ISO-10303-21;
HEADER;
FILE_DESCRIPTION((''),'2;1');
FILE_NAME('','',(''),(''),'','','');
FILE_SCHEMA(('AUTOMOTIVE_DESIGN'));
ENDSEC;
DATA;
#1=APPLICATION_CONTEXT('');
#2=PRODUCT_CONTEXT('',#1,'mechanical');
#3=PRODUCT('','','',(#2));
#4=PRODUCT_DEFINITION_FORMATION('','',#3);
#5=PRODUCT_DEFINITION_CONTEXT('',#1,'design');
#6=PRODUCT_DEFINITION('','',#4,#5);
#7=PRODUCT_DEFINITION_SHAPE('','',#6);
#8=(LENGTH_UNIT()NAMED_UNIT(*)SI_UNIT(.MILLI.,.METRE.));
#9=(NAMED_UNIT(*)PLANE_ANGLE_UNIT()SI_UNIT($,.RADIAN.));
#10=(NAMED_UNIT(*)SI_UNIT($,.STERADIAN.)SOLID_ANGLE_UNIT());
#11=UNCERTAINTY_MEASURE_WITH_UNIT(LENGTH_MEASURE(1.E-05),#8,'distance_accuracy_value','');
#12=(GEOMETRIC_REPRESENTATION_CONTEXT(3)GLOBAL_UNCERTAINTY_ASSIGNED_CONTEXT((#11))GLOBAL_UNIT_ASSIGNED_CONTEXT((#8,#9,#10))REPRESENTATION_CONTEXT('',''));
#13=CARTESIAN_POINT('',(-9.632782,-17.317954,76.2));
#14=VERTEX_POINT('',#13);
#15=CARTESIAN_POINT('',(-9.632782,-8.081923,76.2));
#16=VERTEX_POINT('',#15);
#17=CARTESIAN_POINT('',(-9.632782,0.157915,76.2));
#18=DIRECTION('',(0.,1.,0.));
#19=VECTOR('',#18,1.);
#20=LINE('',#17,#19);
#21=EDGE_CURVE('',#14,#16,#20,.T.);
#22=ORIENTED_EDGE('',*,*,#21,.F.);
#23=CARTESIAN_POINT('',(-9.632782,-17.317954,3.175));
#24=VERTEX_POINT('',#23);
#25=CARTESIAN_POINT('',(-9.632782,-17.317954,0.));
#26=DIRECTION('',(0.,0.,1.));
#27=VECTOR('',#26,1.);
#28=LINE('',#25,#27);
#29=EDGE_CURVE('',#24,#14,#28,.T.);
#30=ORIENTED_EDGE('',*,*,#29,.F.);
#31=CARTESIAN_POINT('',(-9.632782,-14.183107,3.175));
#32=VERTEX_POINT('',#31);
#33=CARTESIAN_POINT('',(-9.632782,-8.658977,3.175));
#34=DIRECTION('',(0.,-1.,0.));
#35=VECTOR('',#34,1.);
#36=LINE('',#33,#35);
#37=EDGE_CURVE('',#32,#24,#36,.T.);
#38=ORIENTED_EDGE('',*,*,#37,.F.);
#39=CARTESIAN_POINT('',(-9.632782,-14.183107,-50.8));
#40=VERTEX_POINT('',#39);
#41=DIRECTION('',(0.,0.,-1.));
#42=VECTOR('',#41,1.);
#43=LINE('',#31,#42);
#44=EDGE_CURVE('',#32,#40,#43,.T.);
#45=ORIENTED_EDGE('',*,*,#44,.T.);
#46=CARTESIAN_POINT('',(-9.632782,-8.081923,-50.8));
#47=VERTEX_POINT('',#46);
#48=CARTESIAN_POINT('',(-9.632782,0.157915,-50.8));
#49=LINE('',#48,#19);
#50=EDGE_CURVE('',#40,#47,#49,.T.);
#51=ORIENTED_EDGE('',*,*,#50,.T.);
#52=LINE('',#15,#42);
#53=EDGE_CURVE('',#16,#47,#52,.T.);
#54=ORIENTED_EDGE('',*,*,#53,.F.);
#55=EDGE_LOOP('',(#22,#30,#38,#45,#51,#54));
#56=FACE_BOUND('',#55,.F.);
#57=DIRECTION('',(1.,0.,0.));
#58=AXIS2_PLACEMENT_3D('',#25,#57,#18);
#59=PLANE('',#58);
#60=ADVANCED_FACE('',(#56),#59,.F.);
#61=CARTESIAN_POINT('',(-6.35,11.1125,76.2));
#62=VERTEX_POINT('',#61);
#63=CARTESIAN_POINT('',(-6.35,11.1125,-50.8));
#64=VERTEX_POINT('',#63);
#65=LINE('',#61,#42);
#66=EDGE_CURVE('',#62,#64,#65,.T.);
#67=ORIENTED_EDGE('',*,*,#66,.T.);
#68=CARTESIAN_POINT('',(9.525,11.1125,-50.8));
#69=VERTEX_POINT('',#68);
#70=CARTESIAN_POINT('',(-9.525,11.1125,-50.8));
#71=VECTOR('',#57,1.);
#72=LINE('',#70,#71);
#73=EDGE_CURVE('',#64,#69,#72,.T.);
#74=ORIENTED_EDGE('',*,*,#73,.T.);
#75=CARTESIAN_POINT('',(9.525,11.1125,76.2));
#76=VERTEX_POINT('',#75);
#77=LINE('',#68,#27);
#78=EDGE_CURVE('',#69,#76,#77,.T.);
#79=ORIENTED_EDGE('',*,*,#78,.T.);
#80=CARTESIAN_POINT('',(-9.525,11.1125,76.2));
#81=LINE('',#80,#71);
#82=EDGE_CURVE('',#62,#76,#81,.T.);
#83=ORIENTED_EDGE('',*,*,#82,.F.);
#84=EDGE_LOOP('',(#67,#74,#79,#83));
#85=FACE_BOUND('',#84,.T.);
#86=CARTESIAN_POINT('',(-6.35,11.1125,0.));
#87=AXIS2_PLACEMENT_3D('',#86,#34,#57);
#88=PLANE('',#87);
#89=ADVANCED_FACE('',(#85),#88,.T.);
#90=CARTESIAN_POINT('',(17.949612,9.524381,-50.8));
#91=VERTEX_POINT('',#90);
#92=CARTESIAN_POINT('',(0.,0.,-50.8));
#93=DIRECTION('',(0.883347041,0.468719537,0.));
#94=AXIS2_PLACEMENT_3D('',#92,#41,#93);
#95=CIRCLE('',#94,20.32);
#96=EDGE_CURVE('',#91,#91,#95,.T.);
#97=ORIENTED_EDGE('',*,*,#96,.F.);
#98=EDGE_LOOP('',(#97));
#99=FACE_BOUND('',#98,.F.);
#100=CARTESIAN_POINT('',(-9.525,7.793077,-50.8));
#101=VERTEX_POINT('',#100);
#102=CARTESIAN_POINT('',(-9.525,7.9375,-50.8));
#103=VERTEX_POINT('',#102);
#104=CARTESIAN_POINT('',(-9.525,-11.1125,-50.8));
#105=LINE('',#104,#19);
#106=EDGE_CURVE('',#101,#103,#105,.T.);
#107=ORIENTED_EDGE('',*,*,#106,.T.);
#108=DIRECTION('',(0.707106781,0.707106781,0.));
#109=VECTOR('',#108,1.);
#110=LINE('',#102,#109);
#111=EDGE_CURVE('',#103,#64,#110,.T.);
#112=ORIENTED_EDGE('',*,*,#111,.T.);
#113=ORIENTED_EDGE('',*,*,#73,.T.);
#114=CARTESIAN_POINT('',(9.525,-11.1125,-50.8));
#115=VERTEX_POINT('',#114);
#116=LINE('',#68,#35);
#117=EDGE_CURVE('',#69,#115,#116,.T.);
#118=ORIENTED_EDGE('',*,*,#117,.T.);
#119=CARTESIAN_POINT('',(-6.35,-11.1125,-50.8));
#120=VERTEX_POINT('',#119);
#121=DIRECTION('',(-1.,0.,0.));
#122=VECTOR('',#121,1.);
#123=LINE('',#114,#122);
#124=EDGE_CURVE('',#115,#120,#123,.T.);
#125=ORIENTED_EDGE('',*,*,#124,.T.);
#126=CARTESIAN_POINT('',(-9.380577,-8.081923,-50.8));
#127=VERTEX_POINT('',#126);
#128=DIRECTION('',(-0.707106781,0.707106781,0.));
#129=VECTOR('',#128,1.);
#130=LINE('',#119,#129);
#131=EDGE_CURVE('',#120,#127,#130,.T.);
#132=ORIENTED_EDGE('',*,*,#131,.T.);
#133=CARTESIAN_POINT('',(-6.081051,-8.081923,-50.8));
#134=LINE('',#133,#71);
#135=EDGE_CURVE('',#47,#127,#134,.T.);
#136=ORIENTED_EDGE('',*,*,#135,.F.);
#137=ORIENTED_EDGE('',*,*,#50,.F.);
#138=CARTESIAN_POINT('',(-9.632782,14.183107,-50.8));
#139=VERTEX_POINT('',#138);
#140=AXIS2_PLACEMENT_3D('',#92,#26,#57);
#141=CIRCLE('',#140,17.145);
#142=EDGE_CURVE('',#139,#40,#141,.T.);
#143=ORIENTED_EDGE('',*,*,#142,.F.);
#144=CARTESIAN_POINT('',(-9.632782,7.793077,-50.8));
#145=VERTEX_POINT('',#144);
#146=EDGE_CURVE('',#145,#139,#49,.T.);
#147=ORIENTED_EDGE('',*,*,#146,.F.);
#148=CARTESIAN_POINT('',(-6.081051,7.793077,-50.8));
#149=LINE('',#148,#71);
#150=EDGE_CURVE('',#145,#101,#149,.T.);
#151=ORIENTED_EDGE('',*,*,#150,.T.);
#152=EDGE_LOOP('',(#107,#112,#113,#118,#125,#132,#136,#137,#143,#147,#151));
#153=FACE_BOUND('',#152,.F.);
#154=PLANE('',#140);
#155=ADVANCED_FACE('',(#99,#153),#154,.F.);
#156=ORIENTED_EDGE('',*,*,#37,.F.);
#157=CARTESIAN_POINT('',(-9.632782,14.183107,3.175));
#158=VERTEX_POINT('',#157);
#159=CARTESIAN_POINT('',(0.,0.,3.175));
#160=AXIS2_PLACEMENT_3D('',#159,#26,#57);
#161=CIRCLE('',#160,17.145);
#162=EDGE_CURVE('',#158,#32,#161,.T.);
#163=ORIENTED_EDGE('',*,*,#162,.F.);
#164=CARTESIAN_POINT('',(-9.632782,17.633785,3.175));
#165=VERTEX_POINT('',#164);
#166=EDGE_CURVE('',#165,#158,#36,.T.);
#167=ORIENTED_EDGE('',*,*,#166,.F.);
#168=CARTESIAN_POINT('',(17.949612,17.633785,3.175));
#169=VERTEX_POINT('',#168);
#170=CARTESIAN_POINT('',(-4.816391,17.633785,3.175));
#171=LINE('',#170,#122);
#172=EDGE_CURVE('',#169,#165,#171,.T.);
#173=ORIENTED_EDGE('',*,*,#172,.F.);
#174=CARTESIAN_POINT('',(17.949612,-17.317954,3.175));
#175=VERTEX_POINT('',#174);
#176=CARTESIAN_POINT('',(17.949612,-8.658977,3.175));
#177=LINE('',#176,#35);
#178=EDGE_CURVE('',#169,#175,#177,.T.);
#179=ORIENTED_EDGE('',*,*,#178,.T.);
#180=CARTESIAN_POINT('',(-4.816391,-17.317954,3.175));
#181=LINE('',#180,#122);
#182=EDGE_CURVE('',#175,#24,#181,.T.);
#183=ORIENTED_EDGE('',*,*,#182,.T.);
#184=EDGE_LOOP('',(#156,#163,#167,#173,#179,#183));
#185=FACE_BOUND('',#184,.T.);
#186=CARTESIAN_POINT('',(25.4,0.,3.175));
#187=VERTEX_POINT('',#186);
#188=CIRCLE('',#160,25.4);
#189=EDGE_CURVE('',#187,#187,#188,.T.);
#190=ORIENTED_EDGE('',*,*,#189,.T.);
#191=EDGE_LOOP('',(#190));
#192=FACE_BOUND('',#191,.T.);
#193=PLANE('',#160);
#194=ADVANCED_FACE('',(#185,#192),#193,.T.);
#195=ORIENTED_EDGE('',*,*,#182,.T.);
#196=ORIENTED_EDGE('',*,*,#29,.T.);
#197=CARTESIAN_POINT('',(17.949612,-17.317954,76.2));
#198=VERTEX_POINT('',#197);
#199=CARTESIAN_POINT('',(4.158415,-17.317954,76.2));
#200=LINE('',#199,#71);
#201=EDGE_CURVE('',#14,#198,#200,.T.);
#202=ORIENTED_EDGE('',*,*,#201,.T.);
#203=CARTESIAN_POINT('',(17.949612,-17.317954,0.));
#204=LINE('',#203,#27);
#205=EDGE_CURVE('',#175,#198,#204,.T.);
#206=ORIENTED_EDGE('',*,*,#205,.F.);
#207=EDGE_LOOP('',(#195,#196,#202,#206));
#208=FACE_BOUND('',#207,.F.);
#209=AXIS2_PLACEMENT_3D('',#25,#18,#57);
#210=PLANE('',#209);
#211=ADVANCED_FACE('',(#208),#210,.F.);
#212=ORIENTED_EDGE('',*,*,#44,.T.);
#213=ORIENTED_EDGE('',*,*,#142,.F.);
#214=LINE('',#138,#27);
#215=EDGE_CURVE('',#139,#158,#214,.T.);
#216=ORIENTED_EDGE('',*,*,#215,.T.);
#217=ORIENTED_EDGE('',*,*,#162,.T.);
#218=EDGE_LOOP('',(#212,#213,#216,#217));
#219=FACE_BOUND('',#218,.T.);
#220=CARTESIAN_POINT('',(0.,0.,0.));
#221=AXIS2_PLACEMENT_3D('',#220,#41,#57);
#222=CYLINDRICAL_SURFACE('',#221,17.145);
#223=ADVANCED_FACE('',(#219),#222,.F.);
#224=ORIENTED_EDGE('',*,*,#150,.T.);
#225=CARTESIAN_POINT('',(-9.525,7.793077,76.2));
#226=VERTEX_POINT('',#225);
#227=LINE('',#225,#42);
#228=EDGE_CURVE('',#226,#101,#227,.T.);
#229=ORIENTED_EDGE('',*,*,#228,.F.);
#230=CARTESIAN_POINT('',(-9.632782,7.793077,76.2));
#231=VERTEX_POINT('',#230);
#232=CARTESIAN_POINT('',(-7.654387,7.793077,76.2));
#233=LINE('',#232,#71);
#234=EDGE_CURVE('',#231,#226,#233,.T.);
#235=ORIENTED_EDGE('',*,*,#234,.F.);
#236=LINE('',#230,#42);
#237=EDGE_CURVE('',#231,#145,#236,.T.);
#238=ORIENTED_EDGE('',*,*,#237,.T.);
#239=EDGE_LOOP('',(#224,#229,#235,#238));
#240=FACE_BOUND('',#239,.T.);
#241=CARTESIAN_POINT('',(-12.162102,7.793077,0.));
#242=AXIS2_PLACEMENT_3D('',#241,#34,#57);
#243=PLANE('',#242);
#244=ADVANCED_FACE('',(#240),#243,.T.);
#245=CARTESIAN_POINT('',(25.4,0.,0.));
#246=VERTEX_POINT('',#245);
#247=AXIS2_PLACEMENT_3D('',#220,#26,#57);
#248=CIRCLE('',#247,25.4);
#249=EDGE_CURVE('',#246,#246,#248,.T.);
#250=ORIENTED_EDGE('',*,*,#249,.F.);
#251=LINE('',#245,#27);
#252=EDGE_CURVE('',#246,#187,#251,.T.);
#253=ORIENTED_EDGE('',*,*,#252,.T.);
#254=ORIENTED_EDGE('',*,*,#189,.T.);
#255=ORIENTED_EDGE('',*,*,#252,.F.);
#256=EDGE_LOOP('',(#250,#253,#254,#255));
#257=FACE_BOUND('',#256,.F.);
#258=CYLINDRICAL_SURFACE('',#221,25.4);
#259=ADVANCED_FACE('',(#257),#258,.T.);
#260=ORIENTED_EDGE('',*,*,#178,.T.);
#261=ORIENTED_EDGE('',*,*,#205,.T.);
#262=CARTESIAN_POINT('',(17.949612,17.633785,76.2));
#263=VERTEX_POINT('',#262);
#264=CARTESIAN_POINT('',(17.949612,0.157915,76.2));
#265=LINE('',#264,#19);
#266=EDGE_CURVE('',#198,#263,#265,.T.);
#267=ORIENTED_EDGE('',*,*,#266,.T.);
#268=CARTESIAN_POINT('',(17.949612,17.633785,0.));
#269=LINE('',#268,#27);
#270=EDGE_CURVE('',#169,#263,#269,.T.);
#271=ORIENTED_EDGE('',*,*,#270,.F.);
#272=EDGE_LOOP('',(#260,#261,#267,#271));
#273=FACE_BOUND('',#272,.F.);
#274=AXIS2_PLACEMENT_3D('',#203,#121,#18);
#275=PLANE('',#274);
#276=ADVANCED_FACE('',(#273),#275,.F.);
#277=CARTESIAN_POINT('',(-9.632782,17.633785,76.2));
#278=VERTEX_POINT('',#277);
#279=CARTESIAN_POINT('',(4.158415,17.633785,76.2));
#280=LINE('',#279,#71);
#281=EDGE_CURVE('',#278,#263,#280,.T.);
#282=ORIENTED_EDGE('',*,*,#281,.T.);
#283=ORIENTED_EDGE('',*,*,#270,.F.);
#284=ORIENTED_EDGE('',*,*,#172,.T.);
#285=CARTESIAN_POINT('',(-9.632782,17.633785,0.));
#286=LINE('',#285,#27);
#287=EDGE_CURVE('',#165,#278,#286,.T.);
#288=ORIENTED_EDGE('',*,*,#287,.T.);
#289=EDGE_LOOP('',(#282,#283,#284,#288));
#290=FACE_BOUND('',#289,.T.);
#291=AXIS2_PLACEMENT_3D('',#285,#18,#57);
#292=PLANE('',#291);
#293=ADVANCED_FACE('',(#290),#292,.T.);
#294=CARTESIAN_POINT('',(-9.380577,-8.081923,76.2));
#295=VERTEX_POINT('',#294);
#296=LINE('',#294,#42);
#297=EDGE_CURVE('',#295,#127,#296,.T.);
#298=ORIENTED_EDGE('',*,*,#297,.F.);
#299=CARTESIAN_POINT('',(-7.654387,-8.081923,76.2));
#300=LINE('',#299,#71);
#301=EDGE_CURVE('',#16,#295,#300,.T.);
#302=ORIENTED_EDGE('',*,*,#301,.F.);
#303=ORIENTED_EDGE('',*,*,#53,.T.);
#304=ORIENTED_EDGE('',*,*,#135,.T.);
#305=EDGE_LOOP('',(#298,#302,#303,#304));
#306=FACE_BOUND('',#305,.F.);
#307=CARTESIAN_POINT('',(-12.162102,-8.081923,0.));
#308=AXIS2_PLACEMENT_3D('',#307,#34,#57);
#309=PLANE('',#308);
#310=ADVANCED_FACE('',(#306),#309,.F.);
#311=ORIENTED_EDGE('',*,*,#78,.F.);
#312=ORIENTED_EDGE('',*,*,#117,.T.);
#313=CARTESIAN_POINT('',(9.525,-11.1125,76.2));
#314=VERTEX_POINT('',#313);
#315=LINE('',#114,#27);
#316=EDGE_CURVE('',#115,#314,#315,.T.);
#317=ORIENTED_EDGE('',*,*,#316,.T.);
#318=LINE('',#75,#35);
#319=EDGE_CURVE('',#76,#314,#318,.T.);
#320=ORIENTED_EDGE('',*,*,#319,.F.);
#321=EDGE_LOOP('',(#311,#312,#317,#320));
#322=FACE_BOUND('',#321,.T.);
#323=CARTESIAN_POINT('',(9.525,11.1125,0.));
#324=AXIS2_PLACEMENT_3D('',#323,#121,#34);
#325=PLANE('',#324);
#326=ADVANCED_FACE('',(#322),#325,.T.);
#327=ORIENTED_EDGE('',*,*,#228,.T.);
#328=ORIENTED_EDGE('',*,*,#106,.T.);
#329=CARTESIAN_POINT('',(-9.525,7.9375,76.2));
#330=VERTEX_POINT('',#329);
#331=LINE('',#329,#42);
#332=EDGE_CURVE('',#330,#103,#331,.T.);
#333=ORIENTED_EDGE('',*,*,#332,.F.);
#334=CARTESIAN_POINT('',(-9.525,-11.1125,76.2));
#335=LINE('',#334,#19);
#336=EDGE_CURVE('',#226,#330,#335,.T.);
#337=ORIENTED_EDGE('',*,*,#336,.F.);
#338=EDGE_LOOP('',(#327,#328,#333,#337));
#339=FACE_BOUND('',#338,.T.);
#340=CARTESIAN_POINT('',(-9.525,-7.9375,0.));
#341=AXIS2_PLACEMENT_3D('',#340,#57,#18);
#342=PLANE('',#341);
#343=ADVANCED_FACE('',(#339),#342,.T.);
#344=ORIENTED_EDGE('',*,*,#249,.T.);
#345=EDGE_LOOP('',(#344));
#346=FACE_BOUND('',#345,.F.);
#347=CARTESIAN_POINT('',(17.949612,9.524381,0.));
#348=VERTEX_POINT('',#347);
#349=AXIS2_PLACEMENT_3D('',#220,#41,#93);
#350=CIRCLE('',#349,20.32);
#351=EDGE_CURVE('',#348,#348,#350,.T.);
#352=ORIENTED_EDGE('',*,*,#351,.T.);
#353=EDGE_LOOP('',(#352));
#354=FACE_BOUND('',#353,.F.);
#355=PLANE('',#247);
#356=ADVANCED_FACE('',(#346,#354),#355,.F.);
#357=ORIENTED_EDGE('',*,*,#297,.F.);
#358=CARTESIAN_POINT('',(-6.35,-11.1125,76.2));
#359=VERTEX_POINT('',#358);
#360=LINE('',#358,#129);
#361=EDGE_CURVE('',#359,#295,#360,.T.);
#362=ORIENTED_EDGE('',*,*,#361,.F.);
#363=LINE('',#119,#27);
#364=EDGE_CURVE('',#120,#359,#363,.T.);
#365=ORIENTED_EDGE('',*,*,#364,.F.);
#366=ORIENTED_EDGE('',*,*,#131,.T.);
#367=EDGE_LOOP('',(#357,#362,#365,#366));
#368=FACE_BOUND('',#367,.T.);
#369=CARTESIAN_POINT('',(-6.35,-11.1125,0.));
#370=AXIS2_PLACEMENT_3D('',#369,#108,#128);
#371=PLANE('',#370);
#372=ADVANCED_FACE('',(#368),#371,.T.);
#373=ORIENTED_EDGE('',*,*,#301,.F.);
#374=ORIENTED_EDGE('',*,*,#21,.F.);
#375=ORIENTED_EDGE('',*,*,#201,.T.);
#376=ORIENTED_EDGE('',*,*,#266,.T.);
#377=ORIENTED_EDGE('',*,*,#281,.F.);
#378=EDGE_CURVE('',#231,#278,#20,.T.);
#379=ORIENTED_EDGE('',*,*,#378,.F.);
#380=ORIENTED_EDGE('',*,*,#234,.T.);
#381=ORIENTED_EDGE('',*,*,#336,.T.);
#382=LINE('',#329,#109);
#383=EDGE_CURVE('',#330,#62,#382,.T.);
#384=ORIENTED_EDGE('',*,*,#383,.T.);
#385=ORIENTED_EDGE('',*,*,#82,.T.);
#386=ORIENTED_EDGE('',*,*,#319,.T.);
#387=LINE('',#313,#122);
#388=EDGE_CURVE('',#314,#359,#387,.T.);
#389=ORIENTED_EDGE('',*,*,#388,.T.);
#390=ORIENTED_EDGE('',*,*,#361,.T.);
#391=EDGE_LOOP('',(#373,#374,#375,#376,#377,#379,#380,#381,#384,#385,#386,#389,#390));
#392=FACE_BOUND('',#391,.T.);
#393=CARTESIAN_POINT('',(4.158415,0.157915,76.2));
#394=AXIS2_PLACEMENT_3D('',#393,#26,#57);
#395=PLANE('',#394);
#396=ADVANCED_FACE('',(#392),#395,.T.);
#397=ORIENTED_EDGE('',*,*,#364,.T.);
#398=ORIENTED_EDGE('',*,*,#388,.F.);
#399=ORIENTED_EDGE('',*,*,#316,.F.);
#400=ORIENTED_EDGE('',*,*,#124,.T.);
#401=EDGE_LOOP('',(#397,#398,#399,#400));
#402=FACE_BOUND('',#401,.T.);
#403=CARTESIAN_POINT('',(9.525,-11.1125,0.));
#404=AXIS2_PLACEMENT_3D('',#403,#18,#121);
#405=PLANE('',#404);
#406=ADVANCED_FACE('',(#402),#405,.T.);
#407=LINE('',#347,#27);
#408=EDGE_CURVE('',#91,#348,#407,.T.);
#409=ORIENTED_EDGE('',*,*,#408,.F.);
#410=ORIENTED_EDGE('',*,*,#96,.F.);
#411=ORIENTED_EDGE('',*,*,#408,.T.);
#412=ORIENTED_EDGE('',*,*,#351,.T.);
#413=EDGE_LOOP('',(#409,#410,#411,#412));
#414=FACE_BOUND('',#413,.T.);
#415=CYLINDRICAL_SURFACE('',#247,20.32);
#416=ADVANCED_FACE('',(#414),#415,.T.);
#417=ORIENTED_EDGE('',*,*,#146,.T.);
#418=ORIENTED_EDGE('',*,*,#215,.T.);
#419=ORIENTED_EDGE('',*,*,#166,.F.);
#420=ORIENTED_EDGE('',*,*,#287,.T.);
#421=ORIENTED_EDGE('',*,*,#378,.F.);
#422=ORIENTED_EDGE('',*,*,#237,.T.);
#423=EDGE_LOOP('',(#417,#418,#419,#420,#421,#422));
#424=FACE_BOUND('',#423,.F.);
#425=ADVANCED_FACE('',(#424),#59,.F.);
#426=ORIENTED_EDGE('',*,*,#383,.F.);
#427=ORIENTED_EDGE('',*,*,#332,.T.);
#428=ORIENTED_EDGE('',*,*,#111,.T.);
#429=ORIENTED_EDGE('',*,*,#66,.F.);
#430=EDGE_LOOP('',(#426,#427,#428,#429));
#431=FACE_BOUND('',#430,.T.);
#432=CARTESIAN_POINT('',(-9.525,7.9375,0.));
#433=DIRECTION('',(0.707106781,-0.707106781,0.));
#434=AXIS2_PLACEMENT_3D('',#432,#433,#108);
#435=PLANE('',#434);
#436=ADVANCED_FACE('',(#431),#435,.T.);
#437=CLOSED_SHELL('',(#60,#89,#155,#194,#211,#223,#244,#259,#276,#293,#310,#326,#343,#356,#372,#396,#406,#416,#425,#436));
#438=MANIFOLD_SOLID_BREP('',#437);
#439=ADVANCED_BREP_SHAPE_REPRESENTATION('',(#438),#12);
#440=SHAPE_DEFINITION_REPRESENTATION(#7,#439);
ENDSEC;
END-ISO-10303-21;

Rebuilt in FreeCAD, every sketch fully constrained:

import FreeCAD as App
import Part
import Sketcher

V = App.Vector
Q = App.Units.Quantity


def add_polygon(sketch, points):
    """Adds a closed chain of lines whose ends are joined by coincident constraints."""
    first, n = sketch.GeometryCount, len(points)
    for a, b in zip(points, points[1:] + points[:1]):
        sketch.addGeometry(Part.LineSegment(App.Vector(*a, 0), App.Vector(*b, 0)), False)
    for i in range(n):
        sketch.addConstraint(Sketcher.Constraint("Coincident", first + i, 2, first + (i + 1) % n, 1))

doc = App.newDocument("Part")
body = doc.addObject("PartDesign::Body", "Body")

sketch1 = body.newObject("Sketcher::SketchObject", "Sketch")
sketch1.AttachmentSupport = (doc.getObject("XY_Plane"), [""])
sketch1.MapMode = "FlatFace"
sketch1.addGeometry([
    Part.Circle(V(0, 0, 0), V(0, 0, 1), 20),
    Part.Circle(V(0, 0, 0), V(0, 0, 1), 17),
], False)
sketch1.addConstraint([
    Sketcher.Constraint("Coincident", 0, 3, -1, 1),
    Sketcher.Constraint("Coincident", 1, 3, -1, 1),
    Sketcher.Constraint("Diameter", 0, Q("1.6 in")),
    Sketcher.Constraint("Diameter", 1, Q("1.35 in")),
])
pad1 = body.newObject("PartDesign::Pad", "Pad")
pad1.Profile = sketch1
pad1.Length = Q("2 in")
pad1.Reversed = True

sketch2 = body.newObject("Sketcher::SketchObject", "Sketch001")
sketch2.AttachmentSupport = (doc.getObject("XY_Plane"), [""])
sketch2.MapMode = "FlatFace"
sketch2.addGeometry([
    Part.Circle(V(0, 0, 0), V(0, 0, 1), 25),
    Part.Circle(V(0, 0, 0), V(0, 0, 1), 17),
], False)
sketch2.addConstraint([
    Sketcher.Constraint("Coincident", 0, 3, -1, 1),
    Sketcher.Constraint("Coincident", 1, 3, -1, 1),
    Sketcher.Constraint("Diameter", 0, Q("2 in")),
    Sketcher.Constraint("Diameter", 1, Q("1.35 in")),
])
pad2 = body.newObject("PartDesign::Pad", "Pad001")
pad2.Profile = sketch2
pad2.Length = Q("0.125 in")

sketch3 = body.newObject("Sketcher::SketchObject", "Sketch002")
sketch3.AttachmentSupport = (doc.getObject("XY_Plane"), [""])
sketch3.MapMode = "FlatFace"
add_polygon(sketch3, [(-9.6, 17.6), (-9.6, -17.3), (17.9, -17.3), (17.9, 17.6)])
add_polygon(sketch3, [(-6.3, 11.1), (9.5, 11.1), (9.5, -11.1), (-6.3, -11.1), (-9.5, -7.9), (-9.5, 7.9)])
sketch3.addConstraint([
    Sketcher.Constraint("Vertical", 0),
    Sketcher.Constraint("Horizontal", 1),
    Sketcher.Constraint("Vertical", 2),
    Sketcher.Constraint("Horizontal", 3),
    Sketcher.Constraint("Horizontal", 4),
    Sketcher.Constraint("Vertical", 5),
    Sketcher.Constraint("Horizontal", 6),
    Sketcher.Constraint("Vertical", 8),
    Sketcher.Constraint("Symmetric", 6, 2, 9, 2, -1),
    Sketcher.Constraint("Perpendicular", 7, 9),
    Sketcher.Constraint("Equal", 6, 8),
    Sketcher.Constraint("Equal", 7, 9),
    Sketcher.Constraint("DistanceX", 4, 1, 4, 2, Q("0.625 in")),
    Sketcher.Constraint("DistanceY", 5, 2, 5, 1, Q("0.875 in")),
    Sketcher.Constraint("DistanceX", 6, 2, -1, 1, Q("0.25 in")),
    Sketcher.Constraint("DistanceY", 0, 2, 0, 1, Q("34.951739 mm")),
    Sketcher.Constraint("DistanceX", 1, 1, 1, 2, Q("27.582394 mm")),
    Sketcher.Constraint("DistanceX", -1, 1, 1, 2, Q("17.949612 mm")),
    Sketcher.Constraint("DistanceY", 0, 2, -1, 1, Q("17.317954 mm")),
])
pad3 = body.newObject("PartDesign::Pad", "Pad002")
pad3.Profile = sketch3
pad3.Type = "TwoLengths"
pad3.Length = Q("3 in")
pad3.Length2 = Q("2 in")

sketch4 = body.newObject("Sketcher::SketchObject", "Sketch003")
sketch4.AttachmentSupport = (doc.getObject("XY_Plane"), [""])
sketch4.MapMode = "FlatFace"
sketch4.addGeometry([
    Part.Circle(V(0, 0, 0), V(0, 0, 1), 34),
    Part.Circle(V(0, 0, 0), V(0, 0, 1), 20),
], False)
sketch4.addConstraint([
    Sketcher.Constraint("Coincident", 0, 3, -1, 1),
    Sketcher.Constraint("Coincident", 1, 3, -1, 1),
    Sketcher.Constraint("Diameter", 1, Q("1.6 in")),
    Sketcher.Constraint("Diameter", 0, Q("68.162843 mm")),
])
pocket1 = body.newObject("PartDesign::Pocket", "Pocket")
pocket1.Profile = sketch4
pocket1.Length = Q("3 in")

sketch5 = body.newObject("Sketcher::SketchObject", "Sketch004")
sketch5.AttachmentSupport = (doc.getObject("XY_Plane"), [""])
sketch5.MapMode = "FlatFace"
add_polygon(sketch5, [(-12, 8), (-12, -8), (-3, -8), (-3, 8)])
sketch5.addConstraint([
    Sketcher.Constraint("Vertical", 0),
    Sketcher.Constraint("Horizontal", 1),
    Sketcher.Constraint("Vertical", 2),
    Sketcher.Constraint("Horizontal", 3),
    Sketcher.Constraint("DistanceY", 0, 2, 0, 1, Q("0.625 in")),
    Sketcher.Constraint("DistanceX", 1, 1, 1, 2, Q("9.015431 mm")),
    Sketcher.Constraint("DistanceX", 1, 2, -1, 1, Q("3.146671 mm")),
    Sketcher.Constraint("DistanceY", 0, 2, -1, 1, Q("8.081923 mm")),
])
pocket2 = body.newObject("PartDesign::Pocket", "Pocket001")
pocket2.Profile = sketch5
pocket2.Type = "ThroughAll"
pocket2.Midplane = True

doc.recompute()
